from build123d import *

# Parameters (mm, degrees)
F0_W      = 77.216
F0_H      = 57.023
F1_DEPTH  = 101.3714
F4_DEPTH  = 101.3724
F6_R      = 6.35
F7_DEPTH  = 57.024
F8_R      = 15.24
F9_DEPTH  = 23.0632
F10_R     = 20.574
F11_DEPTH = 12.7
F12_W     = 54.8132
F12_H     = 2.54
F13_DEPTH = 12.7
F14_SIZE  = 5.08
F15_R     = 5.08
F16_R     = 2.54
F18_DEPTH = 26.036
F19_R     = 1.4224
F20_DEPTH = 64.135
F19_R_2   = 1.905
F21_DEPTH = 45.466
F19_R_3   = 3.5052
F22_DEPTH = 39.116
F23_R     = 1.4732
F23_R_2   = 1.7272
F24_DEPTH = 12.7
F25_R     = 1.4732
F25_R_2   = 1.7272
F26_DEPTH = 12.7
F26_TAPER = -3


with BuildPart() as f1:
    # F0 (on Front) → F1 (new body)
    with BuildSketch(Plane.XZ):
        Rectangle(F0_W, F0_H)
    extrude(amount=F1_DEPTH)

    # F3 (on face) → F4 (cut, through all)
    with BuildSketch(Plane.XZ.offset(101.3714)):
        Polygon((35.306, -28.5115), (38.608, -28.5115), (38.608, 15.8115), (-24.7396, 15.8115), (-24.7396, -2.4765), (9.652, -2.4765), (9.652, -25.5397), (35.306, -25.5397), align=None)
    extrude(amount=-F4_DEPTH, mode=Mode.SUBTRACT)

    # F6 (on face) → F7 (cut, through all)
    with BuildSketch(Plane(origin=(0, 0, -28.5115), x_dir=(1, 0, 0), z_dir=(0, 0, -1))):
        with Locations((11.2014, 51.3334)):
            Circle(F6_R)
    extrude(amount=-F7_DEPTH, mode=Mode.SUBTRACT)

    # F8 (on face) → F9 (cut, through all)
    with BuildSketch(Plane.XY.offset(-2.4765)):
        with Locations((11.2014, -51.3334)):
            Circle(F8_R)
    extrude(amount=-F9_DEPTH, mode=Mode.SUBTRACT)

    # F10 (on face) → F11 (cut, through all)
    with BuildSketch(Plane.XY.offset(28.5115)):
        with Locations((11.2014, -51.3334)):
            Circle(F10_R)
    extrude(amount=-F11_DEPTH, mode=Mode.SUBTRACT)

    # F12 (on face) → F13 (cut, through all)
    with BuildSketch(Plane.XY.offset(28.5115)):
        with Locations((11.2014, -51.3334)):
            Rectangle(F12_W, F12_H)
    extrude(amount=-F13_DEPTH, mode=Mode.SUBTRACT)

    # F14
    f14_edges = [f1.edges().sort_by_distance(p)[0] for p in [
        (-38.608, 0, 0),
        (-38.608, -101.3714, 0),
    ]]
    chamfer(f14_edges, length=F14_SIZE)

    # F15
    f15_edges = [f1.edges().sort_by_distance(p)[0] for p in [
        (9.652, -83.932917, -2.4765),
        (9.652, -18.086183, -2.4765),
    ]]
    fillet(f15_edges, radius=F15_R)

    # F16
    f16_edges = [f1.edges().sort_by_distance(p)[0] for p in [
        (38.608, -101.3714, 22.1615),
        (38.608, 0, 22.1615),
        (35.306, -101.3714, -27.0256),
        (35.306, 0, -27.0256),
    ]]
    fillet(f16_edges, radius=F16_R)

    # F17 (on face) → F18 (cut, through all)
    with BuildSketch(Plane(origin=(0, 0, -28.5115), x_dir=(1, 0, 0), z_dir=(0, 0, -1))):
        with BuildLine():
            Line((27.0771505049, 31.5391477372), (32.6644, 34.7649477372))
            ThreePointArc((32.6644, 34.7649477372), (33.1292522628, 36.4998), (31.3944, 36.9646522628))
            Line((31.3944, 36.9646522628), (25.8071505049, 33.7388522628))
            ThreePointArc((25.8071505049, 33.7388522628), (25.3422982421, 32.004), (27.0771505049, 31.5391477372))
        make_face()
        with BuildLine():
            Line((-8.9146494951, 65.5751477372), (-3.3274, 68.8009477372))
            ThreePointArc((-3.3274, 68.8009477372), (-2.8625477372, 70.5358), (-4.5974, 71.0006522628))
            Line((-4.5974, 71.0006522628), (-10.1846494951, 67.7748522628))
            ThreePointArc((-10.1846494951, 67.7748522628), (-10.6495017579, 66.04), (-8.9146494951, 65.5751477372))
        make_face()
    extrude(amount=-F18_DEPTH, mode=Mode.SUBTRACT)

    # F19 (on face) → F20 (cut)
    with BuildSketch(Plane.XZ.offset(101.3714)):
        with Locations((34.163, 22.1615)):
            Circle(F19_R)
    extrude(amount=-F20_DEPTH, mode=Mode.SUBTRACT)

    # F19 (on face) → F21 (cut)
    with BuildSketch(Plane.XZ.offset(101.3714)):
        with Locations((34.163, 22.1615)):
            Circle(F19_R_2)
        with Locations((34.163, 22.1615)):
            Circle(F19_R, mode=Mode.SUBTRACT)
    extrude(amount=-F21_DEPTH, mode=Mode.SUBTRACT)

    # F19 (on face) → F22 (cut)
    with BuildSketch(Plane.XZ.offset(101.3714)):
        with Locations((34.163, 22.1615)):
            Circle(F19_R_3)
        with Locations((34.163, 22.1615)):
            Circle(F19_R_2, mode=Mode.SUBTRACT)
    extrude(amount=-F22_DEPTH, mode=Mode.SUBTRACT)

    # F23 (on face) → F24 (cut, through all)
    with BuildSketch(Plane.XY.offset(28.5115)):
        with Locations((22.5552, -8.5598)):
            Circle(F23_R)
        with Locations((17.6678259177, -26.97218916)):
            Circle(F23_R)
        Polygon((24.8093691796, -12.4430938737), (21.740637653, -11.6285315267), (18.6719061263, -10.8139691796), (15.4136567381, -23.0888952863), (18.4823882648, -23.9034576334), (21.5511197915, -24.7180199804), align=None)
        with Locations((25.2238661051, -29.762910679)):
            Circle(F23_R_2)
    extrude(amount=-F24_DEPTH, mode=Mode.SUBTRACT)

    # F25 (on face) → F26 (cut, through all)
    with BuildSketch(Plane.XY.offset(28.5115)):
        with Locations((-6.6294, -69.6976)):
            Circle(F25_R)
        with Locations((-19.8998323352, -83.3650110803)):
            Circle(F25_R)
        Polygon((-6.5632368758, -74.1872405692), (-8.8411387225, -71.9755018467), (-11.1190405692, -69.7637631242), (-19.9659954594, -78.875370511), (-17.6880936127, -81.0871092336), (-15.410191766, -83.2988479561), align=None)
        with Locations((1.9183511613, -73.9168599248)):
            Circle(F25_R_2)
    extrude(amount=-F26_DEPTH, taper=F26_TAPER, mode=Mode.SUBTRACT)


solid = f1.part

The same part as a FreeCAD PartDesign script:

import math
import FreeCAD as App
import Part
import Sketcher

V = App.Vector
Q = App.Units.Quantity


def edges_at(feature, points):
    """Names of the edges that pass closest to the given points."""
    edges = feature.Shape.Edges
    near = lambda p: min(range(len(edges)), key=lambda i: edges[i].distToShape(Part.Vertex(*p))[0])
    return sorted({f"Edge{near(p) + 1}" for p in points})


def add_polygon(sketch, points):
    """Adds a closed chain of lines whose ends are joined by coincident constraints."""
    first, n = sketch.GeometryCount, len(points)
    for a, b in zip(points, points[1:] + points[:1]):
        sketch.addGeometry(Part.LineSegment(App.Vector(*a, 0), App.Vector(*b, 0)), False)
    for i in range(n):
        sketch.addConstraint(Sketcher.Constraint("Coincident", first + i, 2, first + (i + 1) % n, 1))

doc = App.newDocument("Part")
params = doc.addObject("Spreadsheet::Sheet", "Params")
for row, (alias, value) in enumerate([
    ("sketch1_width", "3.04 in"),
    ("sketch1_height", "2.245 in"),
    ("pad1_length", "3.991 in"),
    ("sketch2_width", "0.13 in"),
    ("sketch2_width2", "1.01 in"),
    ("sketch2_height", "0.72 in"),
    ("sketch2_width3", "2.494 in"),
    ("sketch2_height2", "1.745 in"),
    ("sketch3_diameter", "0.5 in"),
    ("sketch4_diameter", "1.2 in"),
    ("pocket3_length", "0.908 in"),
    ("sketch5_diameter", "1.62 in"),
    ("pocket4_length", "0.5 in"),
    ("sketch6_height", "0.1 in"),
    ("sketch6_width", "2.158 in"),
    ("pocket5_length", "0.5 in"),
    ("chamfer_size", "0.2 in"),
    ("fillet_radius", "0.2 in"),
    ("fillet2_radius", "0.1 in"),
    ("sketch7_radius", "0.05 in"),
    ("sketch7_length", "0.254 in"),
    ("pocket6_length", "26.036 mm"),
    ("sketch8_diameter", "0.112 in"),
    ("pocket7_length", "2.525 in"),
    ("sketch9_diameter", "0.15 in"),
    ("sketch9_diameter2", "0.112 in"),
    ("pocket8_length", "1.79 in"),
    ("sketch10_diameter", "0.15 in"),
    ("sketch10_diameter2", "0.276 in"),
    ("pocket9_length", "1.54 in"),
    ("sketch11_diameter", "0.116 in"),
    ("sketch11_diameter2", "0.136 in"),
    ("sketch11_length", "0.5 in"),
    ("sketch11_length2", "0.125 in"),
    ("pocket10_length", "0.5 in"),
    ("sketch12_diameter", "0.116 in"),
    ("sketch12_diameter2", "0.136 in"),
    ("sketch12_length", "0.5 in"),
    ("sketch12_length2", "0.25 in"),
    ("pocket11_length", "0.5 in"),
    ("pocket11_taper", "3 deg"),
], start=1):
    params.set(f"A{row}", alias)
    params.set(f"B{row}", "=" + value)
    params.setAlias(f"B{row}", alias)

body = doc.addObject("PartDesign::Body", "Body")

# Sketch on XZ plane
sketch1 = body.newObject("Sketcher::SketchObject", "Sketch")
sketch1.AttachmentSupport = (doc.getObject("XZ_Plane"), [""])
sketch1.MapMode = "FlatFace"
add_polygon(sketch1, [(-39, 29), (-39, -29), (39, -29), (39, 29)])  # lines 0-3
sketch1.addConstraint(Sketcher.Constraint("Vertical", 0))
sketch1.addConstraint(Sketcher.Constraint("Horizontal", 1))
sketch1.addConstraint(Sketcher.Constraint("Vertical", 2))
sketch1.addConstraint(Sketcher.Constraint("Horizontal", 3))
sketch1.addConstraint(Sketcher.Constraint("Symmetric", 0, 2, 2, 2, -1, 1))
sketch1.addConstraint(Sketcher.Constraint("DistanceX", 1, 1, 1, 2, Q("3.04 in")))
sketch1.addConstraint(Sketcher.Constraint("DistanceY", 0, 2, 0, 1, Q("2.245 in")))
sketch1.setExpression("Constraints[9]", "Params.sketch1_width")
sketch1.setExpression("Constraints[10]", "Params.sketch1_height")
pad1 = body.newObject("PartDesign::Pad", "Pad")
pad1.Profile = sketch1
pad1.setExpression("Length", "Params.pad1_length")

# Sketch on XZ plane
sketch2 = body.newObject("Sketcher::SketchObject", "Sketch001")
sketch2.AttachmentSupport = (doc.getObject("XZ_Plane"), [""])
sketch2.MapMode = "FlatFace"
sketch2.AttachmentOffset = App.Placement(V(0, 0, 3.991 * 25.4), App.Rotation())
add_polygon(sketch2, [(35.3, -28.5), (38.6, -28.5), (38.6, 15.8), (-24.7, 15.8), (-24.7, -2.5), (9.7, -2.5), (9.7, -25.5), (35.3, -25.5)])  # lines 0-7
sketch2.addConstraint(Sketcher.Constraint("Horizontal", 0))
sketch2.addConstraint(Sketcher.Constraint("Vertical", 1))
sketch2.addConstraint(Sketcher.Constraint("Horizontal", 2))
sketch2.addConstraint(Sketcher.Constraint("Vertical", 3))
sketch2.addConstraint(Sketcher.Constraint("Horizontal", 4))
sketch2.addConstraint(Sketcher.Constraint("Vertical", 5))
sketch2.addConstraint(Sketcher.Constraint("Horizontal", 6))
sketch2.addConstraint(Sketcher.Constraint("Vertical", 7))
sketch2.addConstraint(Sketcher.Constraint("DistanceX", 0, 1, 0, 2, Q("0.13 in")))
sketch2.addConstraint(Sketcher.Constraint("DistanceX", 6, 1, 6, 2, Q("1.01 in")))
sketch2.addConstraint(Sketcher.Constraint("DistanceY", 3, 2, 3, 1, Q("0.72 in")))
sketch2.addConstraint(Sketcher.Constraint("DistanceX", 2, 2, 2, 1, Q("2.494 in")))
sketch2.addConstraint(Sketcher.Constraint("DistanceY", 1, 1, 1, 2, Q("1.745 in")))
sketch2.addConstraint(Sketcher.Constraint("DistanceY", 5, 2, 5, 1, Q("0.908 in")))
sketch2.addConstraint(Sketcher.Constraint("DistanceX", -1, 1, 0, 2, Q("1.52 in")))
sketch2.addConstraint(Sketcher.Constraint("DistanceY", 0, 2, -1, 1, Q("1.1225 in")))
sketch2.setExpression("Constraints[16]", "Params.sketch2_width")
sketch2.setExpression("Constraints[17]", "Params.sketch2_width2")
sketch2.setExpression("Constraints[18]", "Params.sketch2_height")
sketch2.setExpression("Constraints[19]", "Params.sketch2_width3")
sketch2.setExpression("Constraints[20]", "Params.sketch2_height2")
pocket1 = body.newObject("PartDesign::Pocket", "Pocket")
pocket1.Profile = sketch2
pocket1.Type = "ThroughAll"

# Sketch on XY plane
sketch3 = body.newObject("Sketcher::SketchObject", "Sketch002")
sketch3.AttachmentSupport = (doc.getObject("XY_Plane"), [""])
sketch3.MapMode = "FlatFace"
sketch3.AttachmentOffset = App.Placement(V(0, 0, -1.1225 * 25.4), App.Rotation())
sketch3.addGeometry(Part.Circle(V(11, -51, 0), V(0, 0, 1), 6), False)
sketch3.addConstraint(Sketcher.Constraint("Diameter", 0, Q("0.5 in")))
sketch3.addConstraint(Sketcher.Constraint("DistanceX", -1, 1, 0, 3, Q("0.441 in")))
sketch3.addConstraint(Sketcher.Constraint("DistanceY", 0, 3, -1, 1, Q("2.021 in")))
sketch3.setExpression("Constraints[0]", "Params.sketch3_diameter")
pocket2 = body.newObject("PartDesign::Pocket", "Pocket001")
pocket2.Profile = sketch3
pocket2.Type = "ThroughAll"
pocket2.Reversed = True

# Sketch on XY plane
sketch4 = body.newObject("Sketcher::SketchObject", "Sketch003")
sketch4.AttachmentSupport = (doc.getObject("XY_Plane"), [""])
sketch4.MapMode = "FlatFace"
sketch4.AttachmentOffset = App.Placement(V(0, 0, -0.0975 * 25.4), App.Rotation())
sketch4.addGeometry(Part.Circle(V(11, -51, 0), V(0, 0, 1), 15), False)
sketch4.addConstraint(Sketcher.Constraint("Diameter", 0, Q("1.2 in")))
sketch4.addConstraint(Sketcher.Constraint("DistanceX", -1, 1, 0, 3, Q("0.441 in")))
sketch4.addConstraint(Sketcher.Constraint("DistanceY", 0, 3, -1, 1, Q("2.021 in")))
sketch4.setExpression("Constraints[0]", "Params.sketch4_diameter")
pocket3 = body.newObject("PartDesign::Pocket", "Pocket002")
pocket3.Profile = sketch4
pocket3.setExpression("Length", "Params.pocket3_length")

# Sketch on XY plane
sketch5 = body.newObject("Sketcher::SketchObject", "Sketch004")
sketch5.AttachmentSupport = (doc.getObject("XY_Plane"), [""])
sketch5.MapMode = "FlatFace"
sketch5.AttachmentOffset = App.Placement(V(0, 0, 1.1225 * 25.4), App.Rotation())
sketch5.addGeometry(Part.Circle(V(11, -51, 0), V(0, 0, 1), 21), False)
sketch5.addConstraint(Sketcher.Constraint("Diameter", 0, Q("1.62 in")))
sketch5.addConstraint(Sketcher.Constraint("DistanceX", -1, 1, 0, 3, Q("0.441 in")))
sketch5.addConstraint(Sketcher.Constraint("DistanceY", 0, 3, -1, 1, Q("2.021 in")))
sketch5.setExpression("Constraints[0]", "Params.sketch5_diameter")
pocket4 = body.newObject("PartDesign::Pocket", "Pocket003")
pocket4.Profile = sketch5
pocket4.setExpression("Length", "Params.pocket4_length")

# Sketch on XY plane
sketch6 = body.newObject("Sketcher::SketchObject", "Sketch005")
sketch6.AttachmentSupport = (doc.getObject("XY_Plane"), [""])
sketch6.MapMode = "FlatFace"
sketch6.AttachmentOffset = App.Placement(V(0, 0, 1.1225 * 25.4), App.Rotation())
add_polygon(sketch6, [(-16.2, -50.1), (-16.2, -52.6), (38.6, -52.6), (38.6, -50.1)])  # lines 0-3
sketch6.addConstraint(Sketcher.Constraint("Vertical", 0))
sketch6.addConstraint(Sketcher.Constraint("Horizontal", 1))
sketch6.addConstraint(Sketcher.Constraint("Vertical", 2))
sketch6.addConstraint(Sketcher.Constraint("Horizontal", 3))
sketch6.addConstraint(Sketcher.Constraint("DistanceY", 0, 2, 0, 1, Q("0.1 in")))
sketch6.addConstraint(Sketcher.Constraint("DistanceX", 1, 1, 1, 2, Q("2.158 in")))
sketch6.addConstraint(Sketcher.Constraint("DistanceX", -1, 1, 1, 2, Q("1.52 in")))
sketch6.addConstraint(Sketcher.Constraint("DistanceY", 0, 2, -1, 1, Q("2.071 in")))
sketch6.setExpression("Constraints[8]", "Params.sketch6_height")
sketch6.setExpression("Constraints[9]", "Params.sketch6_width")
pocket5 = body.newObject("PartDesign::Pocket", "Pocket004")
pocket5.Profile = sketch6
pocket5.setExpression("Length", "Params.pocket5_length")
doc.recompute()

chamfer = body.newObject("PartDesign::Chamfer", "Chamfer")
chamfer.Base = (pocket5, edges_at(pocket5, [(-38.608, 0, 0), (-38.608, -101.371, 0)]))
chamfer.setExpression("Size", "Params.chamfer_size")
doc.recompute()

fillet = body.newObject("PartDesign::Fillet", "Fillet")
fillet.Base = (chamfer, edges_at(chamfer, [(9.652, -83.933, -2.477), (9.652, -18.086, -2.477)]))
fillet.setExpression("Radius", "Params.fillet_radius")
doc.recompute()

fillet2 = body.newObject("PartDesign::Fillet", "Fillet001")
fillet2.Base = (fillet, edges_at(fillet, [
    (38.608, -101.371, 22.162),
    (38.608, 0, 22.162),
    (35.306, -101.371, -27.026),
    (35.306, 0, -27.026),
]))
fillet2.setExpression("Radius", "Params.fillet2_radius")

# Sketch on XY plane
sketch7 = body.newObject("Sketcher::SketchObject", "Sketch006")
sketch7.AttachmentSupport = (doc.getObject("XY_Plane"), [""])
sketch7.MapMode = "FlatFace"
sketch7.AttachmentOffset = App.Placement(V(0, 0, -1.1225 * 25.4), App.Rotation())
sketch7.addGeometry(Part.LineSegment(V(27.1, -31.5, 0), V(32.7, -34.8, 0)), False)
sketch7.addGeometry(Part.ArcOfCircle(Part.Circle(V(32, -35.9, 0), V(0, 0, 1), 1.3), math.radians(-120), math.radians(60)), False)
sketch7.addGeometry(Part.LineSegment(V(31.4, -37, 0), V(25.8, -33.7, 0)), False)
sketch7.addGeometry(Part.ArcOfCircle(Part.Circle(V(26.4, -32.6, 0), V(0, 0, 1), 1.3), math.radians(60), math.radians(240)), False)
sketch7.addGeometry(Part.LineSegment(V(-8.9, -65.6, 0), V(-3.3, -68.8, 0)), False)
sketch7.addGeometry(Part.ArcOfCircle(Part.Circle(V(-4, -69.9, 0), V(0, 0, 1), 1.3), math.radians(-120), math.radians(60)), False)
sketch7.addGeometry(Part.LineSegment(V(-4.6, -71, 0), V(-10.2, -67.8, 0)), False)
sketch7.addGeometry(Part.ArcOfCircle(Part.Circle(V(-9.5, -66.7, 0), V(0, 0, 1), 1.3), math.radians(60), math.radians(240)), False)
sketch7.addConstraint(Sketcher.Constraint("Tangent", 0, 2, 1, 2))
sketch7.addConstraint(Sketcher.Constraint("Tangent", 1, 1, 2, 1))
sketch7.addConstraint(Sketcher.Constraint("Tangent", 2, 2, 3, 2))
sketch7.addConstraint(Sketcher.Constraint("Tangent", 3, 1, 0, 1))
sketch7.addConstraint(Sketcher.Constraint("Tangent", 4, 2, 5, 2))
sketch7.addConstraint(Sketcher.Constraint("Tangent", 5, 1, 6, 1))
sketch7.addConstraint(Sketcher.Constraint("Tangent", 6, 2, 7, 2))
sketch7.addConstraint(Sketcher.Constraint("Tangent", 7, 1, 4, 1))
sketch7.addConstraint(Sketcher.Constraint("Equal", 1, 3))
sketch7.addConstraint(Sketcher.Constraint("Equal", 3, 5))
sketch7.addConstraint(Sketcher.Constraint("Equal", 5, 7))
sketch7.addConstraint(Sketcher.Constraint("Parallel", 2, 4))
sketch7.addConstraint(Sketcher.Constraint("Equal", 2, 4))
sketch7.addConstraint(Sketcher.Constraint("Radius", 1, Q("0.05 in")))
sketch7.addConstraint(Sketcher.Constraint("Angle", 0, Q("-30 deg")))
sketch7.addConstraint(Sketcher.Constraint("DistanceY", 5, 3, 1, 3, Q("1.34 in")))
sketch7.addConstraint(Sketcher.Constraint("Distance", 0, Q("0.254 in")))
sketch7.addConstraint(Sketcher.Constraint("DistanceX", -1, 1, 1, 3, Q("1.261 in")))
sketch7.addConstraint(Sketcher.Constraint("DistanceY", 1, 3, -1, 1, Q("1.412 in")))
sketch7.addConstraint(Sketcher.Constraint("DistanceX", 5, 3, -1, 1, Q("0.156 in")))
sketch7.setExpression("Constraints[13]", "Params.sketch7_radius")
sketch7.setExpression("Constraints[16]", "Params.sketch7_length")
pocket6 = body.newObject("PartDesign::Pocket", "Pocket005")
pocket6.Profile = sketch7
pocket6.setExpression("Length", "Params.pocket6_length")
pocket6.Reversed = True

# Sketch on XZ plane
sketch8 = body.newObject("Sketcher::SketchObject", "Sketch007")
sketch8.AttachmentSupport = (doc.getObject("XZ_Plane"), [""])
sketch8.MapMode = "FlatFace"
sketch8.AttachmentOffset = App.Placement(V(0, 0, 3.991 * 25.4), App.Rotation())
sketch8.addGeometry(Part.Circle(V(34.2, 22.2, 0), V(0, 0, 1), 1.4), False)
sketch8.addConstraint(Sketcher.Constraint("Diameter", 0, Q("0.112 in")))
sketch8.addConstraint(Sketcher.Constraint("DistanceX", -1, 1, 0, 3, Q("1.345 in")))
sketch8.addConstraint(Sketcher.Constraint("DistanceY", -1, 1, 0, 3, Q("0.8725 in")))
sketch8.setExpression("Constraints[0]", "Params.sketch8_diameter")
pocket7 = body.newObject("PartDesign::Pocket", "Pocket006")
pocket7.Profile = sketch8
pocket7.setExpression("Length", "Params.pocket7_length")

# Sketch on XZ plane
sketch9 = body.newObject("Sketcher::SketchObject", "Sketch008")
sketch9.AttachmentSupport = (doc.getObject("XZ_Plane"), [""])
sketch9.MapMode = "FlatFace"
sketch9.AttachmentOffset = App.Placement(V(0, 0, 3.991 * 25.4), App.Rotation())
sketch9.addGeometry(Part.Circle(V(34.2, 22.2, 0), V(0, 0, 1), 1.9), False)
sketch9.addGeometry(Part.Circle(V(34.2, 22.2, 0), V(0, 0, 1), 1.4), False)
sketch9.addConstraint(Sketcher.Constraint("Coincident", 1, 3, 0, 3))
sketch9.addConstraint(Sketcher.Constraint("Diameter", 0, Q("0.15 in")))
sketch9.addConstraint(Sketcher.Constraint("Diameter", 1, Q("0.112 in")))
sketch9.addConstraint(Sketcher.Constraint("DistanceX", -1, 1, 0, 3, Q("1.345 in")))
sketch9.addConstraint(Sketcher.Constraint("DistanceY", -1, 1, 0, 3, Q("0.8725 in")))
sketch9.setExpression("Constraints[1]", "Params.sketch9_diameter")
sketch9.setExpression("Constraints[2]", "Params.sketch9_diameter2")
pocket8 = body.newObject("PartDesign::Pocket", "Pocket007")
pocket8.Profile = sketch9
pocket8.setExpression("Length", "Params.pocket8_length")

# Sketch on XZ plane
sketch10 = body.newObject("Sketcher::SketchObject", "Sketch009")
sketch10.AttachmentSupport = (doc.getObject("XZ_Plane"), [""])
sketch10.MapMode = "FlatFace"
sketch10.AttachmentOffset = App.Placement(V(0, 0, 3.991 * 25.4), App.Rotation())
sketch10.addGeometry(Part.Circle(V(34.2, 22.2, 0), V(0, 0, 1), 3.5), False)
sketch10.addGeometry(Part.Circle(V(34.2, 22.2, 0), V(0, 0, 1), 1.9), False)
sketch10.addConstraint(Sketcher.Constraint("Coincident", 1, 3, 0, 3))
sketch10.addConstraint(Sketcher.Constraint("Diameter", 1, Q("0.15 in")))
sketch10.addConstraint(Sketcher.Constraint("Diameter", 0, Q("0.276 in")))
sketch10.addConstraint(Sketcher.Constraint("DistanceX", -1, 1, 0, 3, Q("1.345 in")))
sketch10.addConstraint(Sketcher.Constraint("DistanceY", -1, 1, 0, 3, Q("0.8725 in")))
sketch10.setExpression("Constraints[1]", "Params.sketch10_diameter")
sketch10.setExpression("Constraints[2]", "Params.sketch10_diameter2")
pocket9 = body.newObject("PartDesign::Pocket", "Pocket008")
pocket9.Profile = sketch10
pocket9.setExpression("Length", "Params.pocket9_length")

# Sketch on XY plane
sketch11 = body.newObject("Sketcher::SketchObject", "Sketch010")
sketch11.AttachmentSupport = (doc.getObject("XY_Plane"), [""])
sketch11.MapMode = "FlatFace"
sketch11.AttachmentOffset = App.Placement(V(0, 0, 1.1225 * 25.4), App.Rotation())
sketch11.addGeometry(Part.Circle(V(22.6, -8.6, 0), V(0, 0, 1), 1.5), False)  # 0
sketch11.addGeometry(Part.Circle(V(17.7, -27, 0), V(0, 0, 1), 1.5), False)  # 1
add_polygon(sketch11, [(24.8, -12.4), (21.7, -11.6), (18.7, -10.8), (15.4, -23.1), (18.5, -23.9), (21.6, -24.7)])  # lines 2-7
sketch11.addGeometry(Part.Circle(V(25.2, -29.8, 0), V(0, 0, 1), 1.7), False)  # 8
sketch11.addConstraint(Sketcher.Constraint("Equal", 0, 1))
sketch11.addConstraint(Sketcher.Constraint("Parallel", 2, 3))
sketch11.addConstraint(Sketcher.Constraint("Perpendicular", 3, 4))
sketch11.addConstraint(Sketcher.Constraint("Perpendicular", 4, 5))
sketch11.addConstraint(Sketcher.Constraint("Parallel", 5, 6))
sketch11.addConstraint(Sketcher.Constraint("Perpendicular", 6, 7))
sketch11.addConstraint(Sketcher.Constraint("Equal", 2, 3))
sketch11.addConstraint(Sketcher.Constraint("Equal", 3, 5))
sketch11.addConstraint(Sketcher.Constraint("Diameter", 0, Q("0.116 in")))
sketch11.addConstraint(Sketcher.Constraint("Diameter", 8, Q("0.136 in")))
sketch11.addConstraint(Sketcher.Constraint("Distance", 4, Q("0.5 in")))
sketch11.addConstraint(Sketcher.Constraint("Distance", 2, Q("0.125 in")))
sketch11.addConstraint(Sketcher.Constraint("DistanceX", -1, 1, 0, 3, Q("0.888 in")))
sketch11.addConstraint(Sketcher.Constraint("DistanceY", 0, 3, -1, 1, Q("0.337 in")))
sketch11.addConstraint(Sketcher.Constraint("DistanceY", 1, 3, -1, 1, Q("26.972189 mm")))
sketch11.addConstraint(Sketcher.Constraint("DistanceY", 8, 3, -1, 1, Q("29.762911 mm")))
sketch11.addConstraint(Sketcher.Constraint("DistanceY", 2, 2, -1, 1, Q("11.628532 mm")))
sketch11.addConstraint(Sketcher.Constraint("DistanceY", 3, 2, -1, 1, Q("10.813969 mm")))
sketch11.addConstraint(Sketcher.Constraint("DistanceX", -1, 1, 5, 2, Q("18.482388 mm")))
sketch11.addConstraint(Sketcher.Constraint("DistanceX", 1, 3, 8, 3, Q("7.55604 mm")))
sketch11.addConstraint(Sketcher.Constraint("DistanceX", 1, 3, 2, 2, Q("4.072812 mm")))
sketch11.setExpression("Constraints[14]", "Params.sketch11_diameter")
sketch11.setExpression("Constraints[15]", "Params.sketch11_diameter2")
sketch11.setExpression("Constraints[16]", "Params.sketch11_length")
sketch11.setExpression("Constraints[17]", "Params.sketch11_length2")
pocket10 = body.newObject("PartDesign::Pocket", "Pocket009")
pocket10.Profile = sketch11
pocket10.setExpression("Length", "Params.pocket10_length")

# Sketch on XY plane
sketch12 = body.newObject("Sketcher::SketchObject", "Sketch011")
sketch12.AttachmentSupport = (doc.getObject("XY_Plane"), [""])
sketch12.MapMode = "FlatFace"
sketch12.AttachmentOffset = App.Placement(V(0, 0, 1.1225 * 25.4), App.Rotation())
sketch12.addGeometry(Part.Circle(V(-6.6, -69.7, 0), V(0, 0, 1), 1.5), False)  # 0
sketch12.addGeometry(Part.Circle(V(-19.9, -83.4, 0), V(0, 0, 1), 1.5), False)  # 1
add_polygon(sketch12, [(-6.6, -74.2), (-11.1, -69.8), (-20, -78.9), (-17.7, -81.1), (-15.4, -83.3)])  # lines 2-6
sketch12.addGeometry(Part.Circle(V(1.9, -73.9, 0), V(0, 0, 1), 1.7), False)  # 7
sketch12.addConstraint(Sketcher.Constraint("Equal", 0, 1))
sketch12.addConstraint(Sketcher.Constraint("Perpendicular", 2, 3))
sketch12.addConstraint(Sketcher.Constraint("Perpendicular", 3, 4))
sketch12.addConstraint(Sketcher.Constraint("Parallel", 4, 5))
sketch12.addConstraint(Sketcher.Constraint("Perpendicular", 5, 6))
sketch12.addConstraint(Sketcher.Constraint("Equal", 4, 5))
sketch12.addConstraint(Sketcher.Constraint("Diameter", 0, Q("0.116 in")))
sketch12.addConstraint(Sketcher.Constraint("Diameter", 7, Q("0.136 in")))
sketch12.addConstraint(Sketcher.Constraint("Distance", 3, Q("0.5 in")))
sketch12.addConstraint(Sketcher.Constraint("Distance", 2, Q("0.25 in")))
sketch12.addConstraint(Sketcher.Constraint("DistanceX", 0, 3, -1, 1, Q("0.261 in")))
sketch12.addConstraint(Sketcher.Constraint("DistanceY", 0, 3, -1, 1, Q("2.744 in")))
sketch12.addConstraint(Sketcher.Constraint("DistanceY", 1, 3, 4, 2, Q("2.277902 mm")))
sketch12.addConstraint(Sketcher.Constraint("DistanceX", 3, 2, 4, 2, Q("2.277902 mm")))
sketch12.addConstraint(Sketcher.Constraint("DistanceY", 1, 3, -1, 1, Q("83.365011 mm")))
sketch12.addConstraint(Sketcher.Constraint("DistanceX", -1, 1, 7, 3, Q("1.918351 mm")))
sketch12.addConstraint(Sketcher.Constraint("DistanceY", 7, 3, -1, 1, Q("73.91686 mm")))
sketch12.addConstraint(Sketcher.Constraint("DistanceX", 2, 2, -1, 1, Q("11.119041 mm")))
sketch12.addConstraint(Sketcher.Constraint("DistanceX", 1, 3, 2, 2, Q("8.780792 mm")))
sketch12.setExpression("Constraints[11]", "Params.sketch12_diameter")
sketch12.setExpression("Constraints[12]", "Params.sketch12_diameter2")
sketch12.setExpression("Constraints[13]", "Params.sketch12_length")
sketch12.setExpression("Constraints[14]", "Params.sketch12_length2")
pocket11 = body.newObject("PartDesign::Pocket", "Pocket010")
pocket11.Profile = sketch12
pocket11.setExpression("Length", "Params.pocket11_length")
pocket11.setExpression("TaperAngle", "Params.pocket11_taper")

doc.recompute()
